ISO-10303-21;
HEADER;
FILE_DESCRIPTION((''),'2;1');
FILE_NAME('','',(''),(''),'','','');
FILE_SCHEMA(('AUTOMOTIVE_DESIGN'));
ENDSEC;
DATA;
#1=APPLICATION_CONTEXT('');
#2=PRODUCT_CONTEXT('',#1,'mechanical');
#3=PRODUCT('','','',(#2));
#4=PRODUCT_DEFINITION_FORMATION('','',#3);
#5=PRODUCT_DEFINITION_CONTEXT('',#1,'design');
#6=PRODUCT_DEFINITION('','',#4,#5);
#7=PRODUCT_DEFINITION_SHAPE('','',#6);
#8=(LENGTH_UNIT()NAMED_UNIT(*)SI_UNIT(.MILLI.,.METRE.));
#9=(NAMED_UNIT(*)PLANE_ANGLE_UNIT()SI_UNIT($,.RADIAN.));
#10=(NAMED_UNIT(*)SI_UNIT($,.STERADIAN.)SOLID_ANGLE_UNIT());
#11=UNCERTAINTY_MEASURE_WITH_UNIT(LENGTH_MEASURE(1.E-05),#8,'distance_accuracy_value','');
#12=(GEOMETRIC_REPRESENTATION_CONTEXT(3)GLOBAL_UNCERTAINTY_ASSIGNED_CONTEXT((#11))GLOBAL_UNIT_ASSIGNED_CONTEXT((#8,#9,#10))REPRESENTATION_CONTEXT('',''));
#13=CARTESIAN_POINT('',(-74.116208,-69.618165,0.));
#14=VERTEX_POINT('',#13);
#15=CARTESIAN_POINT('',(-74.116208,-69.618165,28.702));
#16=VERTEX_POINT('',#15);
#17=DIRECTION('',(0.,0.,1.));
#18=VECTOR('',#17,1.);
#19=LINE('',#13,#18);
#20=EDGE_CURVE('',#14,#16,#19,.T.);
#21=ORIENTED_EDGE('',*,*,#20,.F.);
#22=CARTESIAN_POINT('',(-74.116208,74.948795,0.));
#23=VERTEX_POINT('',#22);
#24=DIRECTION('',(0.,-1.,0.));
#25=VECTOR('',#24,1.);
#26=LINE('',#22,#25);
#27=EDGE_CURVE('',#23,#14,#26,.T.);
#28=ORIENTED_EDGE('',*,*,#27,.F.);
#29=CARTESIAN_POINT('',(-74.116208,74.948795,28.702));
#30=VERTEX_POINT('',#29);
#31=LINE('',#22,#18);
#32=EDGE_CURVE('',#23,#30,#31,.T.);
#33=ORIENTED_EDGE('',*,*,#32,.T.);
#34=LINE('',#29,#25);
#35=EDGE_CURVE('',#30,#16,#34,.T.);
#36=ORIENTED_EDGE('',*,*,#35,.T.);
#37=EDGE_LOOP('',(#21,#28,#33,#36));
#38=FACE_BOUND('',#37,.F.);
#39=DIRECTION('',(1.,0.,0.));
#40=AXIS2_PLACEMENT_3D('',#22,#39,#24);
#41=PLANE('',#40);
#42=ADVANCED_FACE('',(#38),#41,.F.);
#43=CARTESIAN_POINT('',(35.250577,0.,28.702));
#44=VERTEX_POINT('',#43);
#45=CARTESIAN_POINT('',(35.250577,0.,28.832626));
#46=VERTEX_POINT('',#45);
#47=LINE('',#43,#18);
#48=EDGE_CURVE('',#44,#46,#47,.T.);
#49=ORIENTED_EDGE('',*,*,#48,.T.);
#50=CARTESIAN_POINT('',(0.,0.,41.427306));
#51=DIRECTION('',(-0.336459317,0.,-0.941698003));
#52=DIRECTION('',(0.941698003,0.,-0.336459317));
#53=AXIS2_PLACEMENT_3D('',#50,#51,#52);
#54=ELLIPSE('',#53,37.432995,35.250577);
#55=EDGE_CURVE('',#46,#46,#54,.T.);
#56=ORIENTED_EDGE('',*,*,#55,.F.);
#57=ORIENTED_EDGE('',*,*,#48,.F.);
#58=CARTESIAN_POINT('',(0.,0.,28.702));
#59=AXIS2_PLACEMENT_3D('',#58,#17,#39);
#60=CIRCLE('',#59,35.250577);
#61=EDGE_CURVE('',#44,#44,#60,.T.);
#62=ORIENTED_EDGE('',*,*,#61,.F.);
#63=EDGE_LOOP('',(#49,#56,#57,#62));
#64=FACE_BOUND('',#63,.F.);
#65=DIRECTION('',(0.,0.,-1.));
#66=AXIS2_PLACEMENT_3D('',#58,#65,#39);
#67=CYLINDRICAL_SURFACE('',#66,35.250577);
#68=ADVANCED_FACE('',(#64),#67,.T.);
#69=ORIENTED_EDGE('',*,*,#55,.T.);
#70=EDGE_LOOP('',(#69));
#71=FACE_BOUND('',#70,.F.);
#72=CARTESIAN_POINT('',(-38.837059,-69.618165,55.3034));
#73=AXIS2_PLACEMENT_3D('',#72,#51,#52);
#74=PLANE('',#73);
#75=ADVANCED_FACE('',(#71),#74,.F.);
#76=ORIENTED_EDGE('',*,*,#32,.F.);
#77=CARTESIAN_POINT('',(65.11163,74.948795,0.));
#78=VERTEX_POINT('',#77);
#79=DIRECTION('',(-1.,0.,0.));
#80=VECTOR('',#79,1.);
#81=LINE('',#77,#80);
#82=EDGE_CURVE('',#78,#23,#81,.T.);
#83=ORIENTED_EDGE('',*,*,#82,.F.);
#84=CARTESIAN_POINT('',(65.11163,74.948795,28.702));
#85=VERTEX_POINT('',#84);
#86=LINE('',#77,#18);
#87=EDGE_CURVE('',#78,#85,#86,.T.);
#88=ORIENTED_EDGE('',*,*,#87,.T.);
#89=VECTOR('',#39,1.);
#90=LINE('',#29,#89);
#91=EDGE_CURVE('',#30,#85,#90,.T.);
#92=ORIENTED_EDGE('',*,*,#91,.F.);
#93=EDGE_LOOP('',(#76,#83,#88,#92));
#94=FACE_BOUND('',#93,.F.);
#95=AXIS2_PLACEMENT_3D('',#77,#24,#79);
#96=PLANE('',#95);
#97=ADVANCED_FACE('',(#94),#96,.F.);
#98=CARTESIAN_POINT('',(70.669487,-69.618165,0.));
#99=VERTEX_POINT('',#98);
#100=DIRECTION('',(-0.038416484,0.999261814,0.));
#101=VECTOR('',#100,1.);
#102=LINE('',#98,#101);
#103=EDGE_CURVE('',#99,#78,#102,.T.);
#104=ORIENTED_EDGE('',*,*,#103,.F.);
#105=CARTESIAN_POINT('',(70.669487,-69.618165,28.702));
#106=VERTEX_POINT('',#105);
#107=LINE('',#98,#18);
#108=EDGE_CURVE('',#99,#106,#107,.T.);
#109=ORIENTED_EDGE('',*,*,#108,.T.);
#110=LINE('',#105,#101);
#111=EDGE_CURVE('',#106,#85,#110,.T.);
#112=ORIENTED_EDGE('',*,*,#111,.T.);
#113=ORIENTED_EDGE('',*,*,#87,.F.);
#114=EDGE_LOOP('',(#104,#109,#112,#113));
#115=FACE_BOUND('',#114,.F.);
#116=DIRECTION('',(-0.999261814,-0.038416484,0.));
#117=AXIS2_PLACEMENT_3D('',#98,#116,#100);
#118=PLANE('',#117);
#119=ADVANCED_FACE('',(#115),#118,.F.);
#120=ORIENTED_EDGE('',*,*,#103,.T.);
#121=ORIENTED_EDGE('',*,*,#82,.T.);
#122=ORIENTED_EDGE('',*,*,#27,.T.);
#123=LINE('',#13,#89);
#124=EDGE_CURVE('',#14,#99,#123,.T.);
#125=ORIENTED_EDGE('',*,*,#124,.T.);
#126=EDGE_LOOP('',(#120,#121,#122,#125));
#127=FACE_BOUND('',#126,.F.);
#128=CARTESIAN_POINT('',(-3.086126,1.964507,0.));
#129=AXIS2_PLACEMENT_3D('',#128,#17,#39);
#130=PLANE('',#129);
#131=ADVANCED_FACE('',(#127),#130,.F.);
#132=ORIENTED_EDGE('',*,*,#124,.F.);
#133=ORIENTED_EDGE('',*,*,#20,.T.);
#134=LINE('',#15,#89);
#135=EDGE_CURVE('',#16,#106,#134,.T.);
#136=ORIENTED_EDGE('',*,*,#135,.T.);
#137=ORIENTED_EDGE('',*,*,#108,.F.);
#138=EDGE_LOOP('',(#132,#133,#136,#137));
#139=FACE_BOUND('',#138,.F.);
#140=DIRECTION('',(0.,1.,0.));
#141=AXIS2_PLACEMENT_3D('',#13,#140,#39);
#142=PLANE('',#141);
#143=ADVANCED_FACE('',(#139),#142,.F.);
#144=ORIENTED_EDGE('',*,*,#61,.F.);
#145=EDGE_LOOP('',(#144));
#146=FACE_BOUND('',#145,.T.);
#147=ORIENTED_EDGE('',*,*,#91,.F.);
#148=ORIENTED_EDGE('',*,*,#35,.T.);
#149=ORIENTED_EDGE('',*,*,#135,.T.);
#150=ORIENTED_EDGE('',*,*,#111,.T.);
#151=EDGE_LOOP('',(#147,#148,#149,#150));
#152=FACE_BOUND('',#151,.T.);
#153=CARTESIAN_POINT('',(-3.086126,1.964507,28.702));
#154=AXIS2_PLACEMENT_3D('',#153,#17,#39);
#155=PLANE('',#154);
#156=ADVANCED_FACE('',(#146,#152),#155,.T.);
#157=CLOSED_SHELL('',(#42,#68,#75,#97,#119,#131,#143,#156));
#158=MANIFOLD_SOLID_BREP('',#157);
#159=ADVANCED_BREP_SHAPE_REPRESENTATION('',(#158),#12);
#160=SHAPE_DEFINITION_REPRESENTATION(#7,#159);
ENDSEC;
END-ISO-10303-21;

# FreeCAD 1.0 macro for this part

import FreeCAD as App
import Part
import Sketcher
Q = App.Units.Quantity

doc = App.newDocument("Part")
body = doc.addObject("PartDesign::Body", "Body")

sketch1 = doc.addObject("Sketcher::SketchObject", "Sketch")
body.addObject(sketch1)
sketch1.AttachmentSupport = (doc.XY_Plane, [""])
sketch1.MapMode = "FlatFace"
sketch1.addGeometry([
    Part.LineSegment(App.Vector(65, 75, 0), App.Vector(-74, 75, 0)),
    Part.LineSegment(App.Vector(-74, 75, 0), App.Vector(-74, -70, 0)),
    Part.LineSegment(App.Vector(-74, -70, 0), App.Vector(71, -70, 0)),
    Part.LineSegment(App.Vector(71, -70, 0), App.Vector(65, 75, 0)),
], False)
sketch1.addConstraint([
    Sketcher.Constraint("Coincident", 0, 2, 1, 1),
    Sketcher.Constraint("Coincident", 1, 2, 2, 1),
    Sketcher.Constraint("Coincident", 2, 2, 3, 1),
    Sketcher.Constraint("Coincident", 3, 2, 0, 1),
    Sketcher.Constraint("Horizontal", 0),
    Sketcher.Constraint("Vertical", 1),
    Sketcher.Constraint("Horizontal", 2),
    Sketcher.Constraint("DistanceX", 0, 2, 0, 1, Q("139.227838 mm")),
    Sketcher.Constraint("DistanceY", 1, 2, 1, 1, Q("144.56696 mm")),
    Sketcher.Constraint("DistanceX", 2, 1, 2, 2, Q("144.785695 mm")),
    Sketcher.Constraint("DistanceX", 0, 2, -1, 1, Q("74.116208 mm")),
    Sketcher.Constraint("DistanceY", -1, 1, 0, 2, Q("74.948795 mm")),
])
pad1 = doc.addObject("PartDesign::Pad", "Pad")
body.addObject(pad1)
pad1.Profile = sketch1
pad1.Length = Q("1.13 in")

sketch2 = doc.addObject("Sketcher::SketchObject", "Sketch001")
body.addObject(sketch2)
sketch2.AttachmentSupport = (doc.XY_Plane, [""])
sketch2.MapMode = "FlatFace"
sketch2.AttachmentOffset = App.Placement(App.Vector(0, 0, 1.13 * 25.4), App.Rotation())
sketch2.addGeometry(Part.Circle(App.Vector(0, 0, 0), App.Vector(0, 0, 1), 35), False)
sketch2.addConstraint([
    Sketcher.Constraint("Coincident", 0, 3, -1, 1),
    Sketcher.Constraint("Diameter", 0, Q("70.501154 mm")),
])
pad2 = doc.addObject("PartDesign::Pad", "Pad001")
body.addObject(pad2)
pad2.Profile = sketch2
pad2.Length = Q("1 in")

sketch3 = doc.addObject("Sketcher::SketchObject", "Sketch002")
body.addObject(sketch3)
sketch3.AttachmentSupport = (doc.XZ_Plane, [""])
sketch3.MapMode = "FlatFace"
sketch3.AttachmentOffset = App.Placement(App.Vector(0, 0, 69.618165), App.Rotation())
sketch3.addGeometry([
    Part.LineSegment(App.Vector(36, 55, 0), App.Vector(-39, 55, 0)),
    Part.LineSegment(App.Vector(-39, 55, 0), App.Vector(36, 29, 0)),
    Part.LineSegment(App.Vector(36, 29, 0), App.Vector(36, 55, 0)),
], False)
sketch3.addConstraint([
    Sketcher.Constraint("Coincident", 0, 2, 1, 1),
    Sketcher.Constraint("Coincident", 1, 2, 2, 1),
    Sketcher.Constraint("Coincident", 2, 2, 0, 1),
    Sketcher.Constraint("Vertical", 2),
    Sketcher.Constraint("DistanceY", -1, 1, 1, 2, Q("1.13 in")),
    Sketcher.Constraint("DistanceY", -1, 1, 0, 2, Q("55.3034 mm")),
    Sketcher.Constraint("DistanceY", 2, 1, 2, 2, Q("26.297514 mm")),
    Sketcher.Constraint("DistanceX", 0, 2, -1, 1, Q("38.837059 mm")),
    Sketcher.Constraint("Distance", 0, Q("74.453857 mm")),
])
pocket1 = doc.addObject("PartDesign::Pocket", "Pocket")
body.addObject(pocket1)
pocket1.Profile = sketch3
pocket1.Type = "ThroughAll"

doc.recompute()
